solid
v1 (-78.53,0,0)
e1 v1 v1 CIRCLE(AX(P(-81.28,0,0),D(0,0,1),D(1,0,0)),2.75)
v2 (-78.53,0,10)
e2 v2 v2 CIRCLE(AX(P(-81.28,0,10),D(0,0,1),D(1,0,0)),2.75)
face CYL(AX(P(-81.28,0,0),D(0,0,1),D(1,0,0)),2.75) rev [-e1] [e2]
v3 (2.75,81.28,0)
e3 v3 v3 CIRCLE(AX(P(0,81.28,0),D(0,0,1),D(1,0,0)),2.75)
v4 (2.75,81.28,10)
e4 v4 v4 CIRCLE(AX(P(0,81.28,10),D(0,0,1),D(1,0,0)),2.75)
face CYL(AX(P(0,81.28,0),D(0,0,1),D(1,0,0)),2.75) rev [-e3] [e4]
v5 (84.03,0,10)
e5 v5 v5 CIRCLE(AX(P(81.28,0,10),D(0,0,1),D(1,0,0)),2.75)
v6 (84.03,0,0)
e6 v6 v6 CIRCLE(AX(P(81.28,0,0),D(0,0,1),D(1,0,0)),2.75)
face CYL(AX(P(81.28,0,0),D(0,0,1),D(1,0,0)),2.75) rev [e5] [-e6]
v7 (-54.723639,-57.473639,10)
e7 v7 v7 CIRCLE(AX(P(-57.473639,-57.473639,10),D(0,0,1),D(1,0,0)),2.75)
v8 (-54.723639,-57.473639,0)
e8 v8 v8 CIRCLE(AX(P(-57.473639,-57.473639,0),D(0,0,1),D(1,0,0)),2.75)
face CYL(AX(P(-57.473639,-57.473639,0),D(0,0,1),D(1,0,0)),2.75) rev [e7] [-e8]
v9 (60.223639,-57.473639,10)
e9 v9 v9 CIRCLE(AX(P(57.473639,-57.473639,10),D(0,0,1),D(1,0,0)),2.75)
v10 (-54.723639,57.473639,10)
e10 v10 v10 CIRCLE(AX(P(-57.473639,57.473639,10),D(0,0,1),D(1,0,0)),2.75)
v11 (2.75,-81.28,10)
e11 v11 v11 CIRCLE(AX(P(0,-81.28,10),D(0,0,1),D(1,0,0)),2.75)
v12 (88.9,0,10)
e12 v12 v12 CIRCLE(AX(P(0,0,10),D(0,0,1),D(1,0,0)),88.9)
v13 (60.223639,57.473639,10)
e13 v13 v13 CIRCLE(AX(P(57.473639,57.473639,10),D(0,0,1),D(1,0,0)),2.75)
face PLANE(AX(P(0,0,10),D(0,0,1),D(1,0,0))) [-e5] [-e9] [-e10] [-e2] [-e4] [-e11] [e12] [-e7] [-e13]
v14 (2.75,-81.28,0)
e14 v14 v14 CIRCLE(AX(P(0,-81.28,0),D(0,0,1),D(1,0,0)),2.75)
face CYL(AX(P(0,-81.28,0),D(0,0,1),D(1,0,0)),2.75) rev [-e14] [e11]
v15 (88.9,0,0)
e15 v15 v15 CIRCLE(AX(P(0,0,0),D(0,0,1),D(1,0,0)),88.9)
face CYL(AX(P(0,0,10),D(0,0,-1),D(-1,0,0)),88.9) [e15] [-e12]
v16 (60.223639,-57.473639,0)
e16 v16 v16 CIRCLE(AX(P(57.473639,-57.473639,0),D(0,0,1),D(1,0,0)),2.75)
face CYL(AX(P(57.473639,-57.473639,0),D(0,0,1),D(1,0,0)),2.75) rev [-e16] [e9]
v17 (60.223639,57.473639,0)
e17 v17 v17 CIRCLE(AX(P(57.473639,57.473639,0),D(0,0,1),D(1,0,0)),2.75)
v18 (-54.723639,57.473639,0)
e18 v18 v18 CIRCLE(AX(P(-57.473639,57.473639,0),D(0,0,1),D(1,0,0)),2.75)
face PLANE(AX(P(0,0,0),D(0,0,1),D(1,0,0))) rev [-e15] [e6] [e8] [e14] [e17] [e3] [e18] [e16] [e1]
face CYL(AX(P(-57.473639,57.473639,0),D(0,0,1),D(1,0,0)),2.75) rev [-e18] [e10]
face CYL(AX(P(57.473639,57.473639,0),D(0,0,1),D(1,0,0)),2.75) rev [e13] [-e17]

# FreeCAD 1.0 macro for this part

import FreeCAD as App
import Part
import Sketcher

V = App.Vector
Q = App.Units.Quantity

doc = App.newDocument("Part")
params = doc.addObject("Spreadsheet::Sheet", "Params")
for row, (alias, value) in enumerate([
    ("sketch1_diameter", "177.8 mm"),
    ("pad1_length", "10 mm"),
    ("sketch2_diameter", "5.5 mm"),
], start=1):
    params.set(f"A{row}", alias)
    params.set(f"B{row}", "=" + value)
    params.setAlias(f"B{row}", alias)

body = doc.addObject("PartDesign::Body", "Body")

# Sketch on XY plane
sketch1 = body.newObject("Sketcher::SketchObject", "Sketch")
sketch1.AttachmentSupport = (doc.getObject("XY_Plane"), [""])
sketch1.MapMode = "FlatFace"
sketch1.addGeometry(Part.Circle(V(0, 0, 0), V(0, 0, 1), 88.9), False)
sketch1.addConstraint([
    Sketcher.Constraint("Coincident", 0, 3, -1, 1),
    Sketcher.Constraint("Diameter", 0, Q("177.8 mm")),
])
sketch1.setExpression("Constraints[1]", "Params.sketch1_diameter")
pad1 = body.newObject("PartDesign::Pad", "Pad")
pad1.Profile = sketch1
pad1.setExpression("Length", "Params.pad1_length")

# Sketch on XY plane
sketch2 = body.newObject("Sketcher::SketchObject", "Sketch001")
sketch2.AttachmentSupport = (doc.getObject("XY_Plane"), [""])
sketch2.MapMode = "FlatFace"
sketch2.AttachmentOffset = App.Placement(V(0, 0, 10), App.Rotation())
sketch2.addGeometry([
    Part.Circle(V(0, 81.28, 0), V(0, 0, 1), 2.75),  # 0
    Part.Circle(V(57.473639, 57.473639, 0), V(0, 0, 1), 2.75),  # 1
    Part.Circle(V(81.28, 0, 0), V(0, 0, 1), 2.75),  # 2
    Part.Circle(V(57.473639, -57.473639, 0), V(0, 0, 1), 2.75),  # 3
    Part.Circle(V(0, -81.28, 0), V(0, 0, 1), 2.75),  # 4
    Part.Circle(V(-57.473639, -57.473639, 0), V(0, 0, 1), 2.75),  # 5
    Part.Circle(V(-81.28, 0, 0), V(0, 0, 1), 2.75),  # 6
    Part.Circle(V(-57.473639, 57.473639, 0), V(0, 0, 1), 2.75),  # 7
], False)
sketch2.addConstraint([
    Sketcher.Constraint("Equal", 0, 1),
    Sketcher.Constraint("Equal", 1, 2),
    Sketcher.Constraint("Equal", 2, 3),
    Sketcher.Constraint("Equal", 3, 4),
    Sketcher.Constraint("Equal", 4, 5),
    Sketcher.Constraint("Equal", 5, 6),
    Sketcher.Constraint("Equal", 6, 7),
    Sketcher.Constraint("Symmetric", 0, 3, 4, 3, -1, 1),
    Sketcher.Constraint("Symmetric", 1, 3, 5, 3, -1, 1),
    Sketcher.Constraint("Symmetric", 2, 3, 6, 3, -1, 1),
    Sketcher.Constraint("Symmetric", 3, 3, 7, 3, -1, 1),
    Sketcher.Constraint("Symmetric", 3, 3, 5, 3, -2),
    Sketcher.Constraint("PointOnObject", 0, 3, -2),
    Sketcher.Constraint("PointOnObject", 2, 3, -1),
    Sketcher.Constraint("Diameter", 0, Q("5.5 mm")),
    Sketcher.Constraint("DistanceY", -1, 1, 0, 3, Q("81.28 mm")),
    Sketcher.Constraint("DistanceX", -1, 1, 2, 3, Q("81.28 mm")),
    Sketcher.Constraint("DistanceX", -1, 1, 1, 3, Q("57.473639 mm")),
    Sketcher.Constraint("DistanceY", -1, 1, 1, 3, Q("57.473639 mm")),
])
sketch2.setExpression("Constraints[14]", "Params.sketch2_diameter")
pocket1 = body.newObject("PartDesign::Pocket", "Pocket")
pocket1.Profile = sketch2
pocket1.Type = "ThroughAll"

doc.recompute()
